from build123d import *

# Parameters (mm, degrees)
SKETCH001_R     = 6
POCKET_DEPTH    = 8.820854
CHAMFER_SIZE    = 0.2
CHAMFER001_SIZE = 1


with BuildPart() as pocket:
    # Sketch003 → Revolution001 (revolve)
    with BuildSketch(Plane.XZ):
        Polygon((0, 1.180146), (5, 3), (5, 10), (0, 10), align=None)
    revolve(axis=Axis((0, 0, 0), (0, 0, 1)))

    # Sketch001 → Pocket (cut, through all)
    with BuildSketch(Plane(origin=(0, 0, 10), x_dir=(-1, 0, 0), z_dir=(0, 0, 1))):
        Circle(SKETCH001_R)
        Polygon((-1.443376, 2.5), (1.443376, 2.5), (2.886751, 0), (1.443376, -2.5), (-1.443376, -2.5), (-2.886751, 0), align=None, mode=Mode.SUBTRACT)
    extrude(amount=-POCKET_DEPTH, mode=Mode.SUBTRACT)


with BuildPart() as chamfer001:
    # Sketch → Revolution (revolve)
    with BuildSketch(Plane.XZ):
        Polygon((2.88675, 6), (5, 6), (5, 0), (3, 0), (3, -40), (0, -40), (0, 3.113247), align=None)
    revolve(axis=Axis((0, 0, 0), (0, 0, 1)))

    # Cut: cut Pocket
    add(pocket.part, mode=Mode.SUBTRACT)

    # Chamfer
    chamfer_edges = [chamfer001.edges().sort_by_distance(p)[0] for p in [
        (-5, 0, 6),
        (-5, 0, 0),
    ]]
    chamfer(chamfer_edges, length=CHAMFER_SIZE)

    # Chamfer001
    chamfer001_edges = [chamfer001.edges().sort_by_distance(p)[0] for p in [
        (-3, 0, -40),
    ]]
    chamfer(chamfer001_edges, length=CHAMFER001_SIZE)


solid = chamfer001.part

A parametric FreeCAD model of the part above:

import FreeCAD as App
import Part
import Sketcher
from FreeCAD import Vector
Q = App.Units.Quantity


def edges_at(feature, points):
    """Names of the edges that pass closest to the given points."""
    edges = feature.Shape.Edges
    near = lambda p: min(range(len(edges)), key=lambda i: edges[i].distToShape(Part.Vertex(*p))[0])
    return sorted({f"Edge{near(p) + 1}" for p in points})


def add_polygon(sketch, points):
    """Adds a closed chain of lines whose ends are joined by coincident constraints."""
    first, n = sketch.GeometryCount, len(points)
    for a, b in zip(points, points[1:] + points[:1]):
        sketch.addGeometry(Part.LineSegment(App.Vector(*a, 0), App.Vector(*b, 0)), False)
    for i in range(n):
        sketch.addConstraint(Sketcher.Constraint("Coincident", first + i, 2, first + (i + 1) % n, 1))

doc = App.newDocument("Part")
body = doc.addObject("PartDesign::Body", "Body")

# Sketch on XZ plane
sketch1 = doc.addObject("Sketcher::SketchObject", "Sketch")
body.addObject(sketch1)
sketch1.AttachmentSupport = (doc.XZ_Plane, [""])
sketch1.MapMode = "FlatFace"
add_polygon(sketch1, [(0, 1.180146), (5, 3), (5, 10), (0, 10)])  # lines 0-3
sketch1.addConstraint(Sketcher.Constraint("Vertical", 1))
sketch1.addConstraint(Sketcher.Constraint("Horizontal", 2))
sketch1.addConstraint(Sketcher.Constraint("Vertical", 3))
sketch1.addConstraint(Sketcher.Constraint("PointOnObject", 2, 2, -2))
sketch1.addConstraint(Sketcher.Constraint("DistanceX", 2, 2, 2, 1, Q("5 mm")))
sketch1.addConstraint(Sketcher.Constraint("DistanceY", 1, 1, 1, 2, Q("7 mm")))
sketch1.addConstraint(Sketcher.Constraint("DistanceY", -1, 1, 0, 2, Q("3 mm")))
sketch1.addConstraint(Sketcher.Constraint("Distance", 0, Q("5.32089 mm")))
revolution = doc.addObject("PartDesign::Revolution", "Revolution")
body.addObject(revolution)
revolution.Profile = sketch1
revolution.ReferenceAxis = (sketch1, ["V_Axis"])
revolution.Angle = 360

# Sketch on XY plane
sketch2 = doc.addObject("Sketcher::SketchObject", "Sketch001")
body.addObject(sketch2)
sketch2.AttachmentSupport = (doc.XY_Plane, [""])
sketch2.MapMode = "FlatFace"
sketch2.AttachmentOffset = App.Placement(Vector(0, 0, 10), App.Rotation())
sketch2.addGeometry(Part.Circle(Vector(0, 0, 0), Vector(0, 0, 1), 6), False)  # 0
add_polygon(sketch2, [(2.886751, 0), (1.443376, -2.5), (-1.443376, -2.5), (-2.886751, 0), (-1.443376, 2.5), (1.443376, 2.5)])  # lines 1-6
sketch2.addConstraint(Sketcher.Constraint("Horizontal", 2))
sketch2.addConstraint(Sketcher.Constraint("Horizontal", 5))
sketch2.addConstraint(Sketcher.Constraint("Coincident", 0, 3, -1, 1))
sketch2.addConstraint(Sketcher.Constraint("Symmetric", 1, 2, 4, 2, -1, 1))
sketch2.addConstraint(Sketcher.Constraint("Symmetric", 3, 2, 6, 2, -1, 1))
sketch2.addConstraint(Sketcher.Constraint("PointOnObject", 3, 2, -1))
sketch2.addConstraint(Sketcher.Constraint("Parallel", 3, 6))
sketch2.addConstraint(Sketcher.Constraint("Vertical", 2, 2, 4, 2))
sketch2.addConstraint(Sketcher.Constraint("Diameter", 0, Q("12 mm")))
sketch2.addConstraint(Sketcher.Constraint("Angle", 1, Q("-119.999988 deg")))
sketch2.addConstraint(Sketcher.Constraint("DistanceY", 2, 2, 4, 2, Q("5 mm")))
sketch2.addConstraint(Sketcher.Constraint("DistanceX", 2, 2, 2, 1, Q("2.886752 mm")))
pocket1 = doc.addObject("PartDesign::Pocket", "Pocket")
body.addObject(pocket1)
pocket1.Profile = sketch2
pocket1.Type = "ThroughAll"
body2 = doc.addObject("PartDesign::Body", "Body001")

# Sketch on XZ plane
sketch3 = doc.addObject("Sketcher::SketchObject", "Sketch002")
body2.addObject(sketch3)
sketch3.AttachmentSupport = (doc.getObject("XZ_Plane001"), [""])
sketch3.MapMode = "FlatFace"
add_polygon(sketch3, [(5, 6), (2.88675, 6), (0, 3.113247), (0, -40), (3, -40), (3, 0), (5, 0)])  # lines 0-6
sketch3.addConstraint(Sketcher.Constraint("Horizontal", 0))
sketch3.addConstraint(Sketcher.Constraint("Vertical", 2))
sketch3.addConstraint(Sketcher.Constraint("Horizontal", 3))
sketch3.addConstraint(Sketcher.Constraint("Vertical", 4))
sketch3.addConstraint(Sketcher.Constraint("Horizontal", 5))
sketch3.addConstraint(Sketcher.Constraint("Vertical", 6))
sketch3.addConstraint(Sketcher.Constraint("PointOnObject", 1, 2, -2))
sketch3.addConstraint(Sketcher.Constraint("PointOnObject", 4, 2, -1))
sketch3.addConstraint(Sketcher.Constraint("DistanceX", 3, 1, 3, 2, Q("3 mm")))
sketch3.addConstraint(Sketcher.Constraint("DistanceX", 5, 1, 5, 2, Q("2 mm")))
sketch3.addConstraint(Sketcher.Constraint("DistanceY", 4, 1, 4, 2, Q("40 mm")))
sketch3.addConstraint(Sketcher.Constraint("DistanceY", 6, 1, 6, 2, Q("6 mm")))
sketch3.addConstraint(Sketcher.Constraint("DistanceX", 0, 2, 0, 1, Q("2.11325 mm")))
sketch3.addConstraint(Sketcher.Constraint("DistanceY", 2, 2, 2, 1, Q("43.113247 mm")))
revolution2 = doc.addObject("PartDesign::Revolution", "Revolution001")
body2.addObject(revolution2)
revolution2.Profile = sketch3
revolution2.ReferenceAxis = (sketch3, ["V_Axis"])
revolution2.Angle = 360
doc.recompute()

boolean = doc.addObject("PartDesign::Boolean", "Boolean")
body2.addObject(boolean)
boolean.Type = "Cut"
boolean.addObjects([body])
doc.recompute()

chamfer = doc.addObject("PartDesign::Chamfer", "Chamfer")
body2.addObject(chamfer)
chamfer.Base = (boolean, edges_at(boolean, [(-5, 0, 6), (-5, 0, 0)]))
chamfer.Size = 0.2
doc.recompute()

chamfer2 = doc.addObject("PartDesign::Chamfer", "Chamfer001")
body2.addObject(chamfer2)
chamfer2.Base = (chamfer, edges_at(chamfer, [(-3, 0, -40)]))
chamfer2.Size = 1

doc.recompute()
